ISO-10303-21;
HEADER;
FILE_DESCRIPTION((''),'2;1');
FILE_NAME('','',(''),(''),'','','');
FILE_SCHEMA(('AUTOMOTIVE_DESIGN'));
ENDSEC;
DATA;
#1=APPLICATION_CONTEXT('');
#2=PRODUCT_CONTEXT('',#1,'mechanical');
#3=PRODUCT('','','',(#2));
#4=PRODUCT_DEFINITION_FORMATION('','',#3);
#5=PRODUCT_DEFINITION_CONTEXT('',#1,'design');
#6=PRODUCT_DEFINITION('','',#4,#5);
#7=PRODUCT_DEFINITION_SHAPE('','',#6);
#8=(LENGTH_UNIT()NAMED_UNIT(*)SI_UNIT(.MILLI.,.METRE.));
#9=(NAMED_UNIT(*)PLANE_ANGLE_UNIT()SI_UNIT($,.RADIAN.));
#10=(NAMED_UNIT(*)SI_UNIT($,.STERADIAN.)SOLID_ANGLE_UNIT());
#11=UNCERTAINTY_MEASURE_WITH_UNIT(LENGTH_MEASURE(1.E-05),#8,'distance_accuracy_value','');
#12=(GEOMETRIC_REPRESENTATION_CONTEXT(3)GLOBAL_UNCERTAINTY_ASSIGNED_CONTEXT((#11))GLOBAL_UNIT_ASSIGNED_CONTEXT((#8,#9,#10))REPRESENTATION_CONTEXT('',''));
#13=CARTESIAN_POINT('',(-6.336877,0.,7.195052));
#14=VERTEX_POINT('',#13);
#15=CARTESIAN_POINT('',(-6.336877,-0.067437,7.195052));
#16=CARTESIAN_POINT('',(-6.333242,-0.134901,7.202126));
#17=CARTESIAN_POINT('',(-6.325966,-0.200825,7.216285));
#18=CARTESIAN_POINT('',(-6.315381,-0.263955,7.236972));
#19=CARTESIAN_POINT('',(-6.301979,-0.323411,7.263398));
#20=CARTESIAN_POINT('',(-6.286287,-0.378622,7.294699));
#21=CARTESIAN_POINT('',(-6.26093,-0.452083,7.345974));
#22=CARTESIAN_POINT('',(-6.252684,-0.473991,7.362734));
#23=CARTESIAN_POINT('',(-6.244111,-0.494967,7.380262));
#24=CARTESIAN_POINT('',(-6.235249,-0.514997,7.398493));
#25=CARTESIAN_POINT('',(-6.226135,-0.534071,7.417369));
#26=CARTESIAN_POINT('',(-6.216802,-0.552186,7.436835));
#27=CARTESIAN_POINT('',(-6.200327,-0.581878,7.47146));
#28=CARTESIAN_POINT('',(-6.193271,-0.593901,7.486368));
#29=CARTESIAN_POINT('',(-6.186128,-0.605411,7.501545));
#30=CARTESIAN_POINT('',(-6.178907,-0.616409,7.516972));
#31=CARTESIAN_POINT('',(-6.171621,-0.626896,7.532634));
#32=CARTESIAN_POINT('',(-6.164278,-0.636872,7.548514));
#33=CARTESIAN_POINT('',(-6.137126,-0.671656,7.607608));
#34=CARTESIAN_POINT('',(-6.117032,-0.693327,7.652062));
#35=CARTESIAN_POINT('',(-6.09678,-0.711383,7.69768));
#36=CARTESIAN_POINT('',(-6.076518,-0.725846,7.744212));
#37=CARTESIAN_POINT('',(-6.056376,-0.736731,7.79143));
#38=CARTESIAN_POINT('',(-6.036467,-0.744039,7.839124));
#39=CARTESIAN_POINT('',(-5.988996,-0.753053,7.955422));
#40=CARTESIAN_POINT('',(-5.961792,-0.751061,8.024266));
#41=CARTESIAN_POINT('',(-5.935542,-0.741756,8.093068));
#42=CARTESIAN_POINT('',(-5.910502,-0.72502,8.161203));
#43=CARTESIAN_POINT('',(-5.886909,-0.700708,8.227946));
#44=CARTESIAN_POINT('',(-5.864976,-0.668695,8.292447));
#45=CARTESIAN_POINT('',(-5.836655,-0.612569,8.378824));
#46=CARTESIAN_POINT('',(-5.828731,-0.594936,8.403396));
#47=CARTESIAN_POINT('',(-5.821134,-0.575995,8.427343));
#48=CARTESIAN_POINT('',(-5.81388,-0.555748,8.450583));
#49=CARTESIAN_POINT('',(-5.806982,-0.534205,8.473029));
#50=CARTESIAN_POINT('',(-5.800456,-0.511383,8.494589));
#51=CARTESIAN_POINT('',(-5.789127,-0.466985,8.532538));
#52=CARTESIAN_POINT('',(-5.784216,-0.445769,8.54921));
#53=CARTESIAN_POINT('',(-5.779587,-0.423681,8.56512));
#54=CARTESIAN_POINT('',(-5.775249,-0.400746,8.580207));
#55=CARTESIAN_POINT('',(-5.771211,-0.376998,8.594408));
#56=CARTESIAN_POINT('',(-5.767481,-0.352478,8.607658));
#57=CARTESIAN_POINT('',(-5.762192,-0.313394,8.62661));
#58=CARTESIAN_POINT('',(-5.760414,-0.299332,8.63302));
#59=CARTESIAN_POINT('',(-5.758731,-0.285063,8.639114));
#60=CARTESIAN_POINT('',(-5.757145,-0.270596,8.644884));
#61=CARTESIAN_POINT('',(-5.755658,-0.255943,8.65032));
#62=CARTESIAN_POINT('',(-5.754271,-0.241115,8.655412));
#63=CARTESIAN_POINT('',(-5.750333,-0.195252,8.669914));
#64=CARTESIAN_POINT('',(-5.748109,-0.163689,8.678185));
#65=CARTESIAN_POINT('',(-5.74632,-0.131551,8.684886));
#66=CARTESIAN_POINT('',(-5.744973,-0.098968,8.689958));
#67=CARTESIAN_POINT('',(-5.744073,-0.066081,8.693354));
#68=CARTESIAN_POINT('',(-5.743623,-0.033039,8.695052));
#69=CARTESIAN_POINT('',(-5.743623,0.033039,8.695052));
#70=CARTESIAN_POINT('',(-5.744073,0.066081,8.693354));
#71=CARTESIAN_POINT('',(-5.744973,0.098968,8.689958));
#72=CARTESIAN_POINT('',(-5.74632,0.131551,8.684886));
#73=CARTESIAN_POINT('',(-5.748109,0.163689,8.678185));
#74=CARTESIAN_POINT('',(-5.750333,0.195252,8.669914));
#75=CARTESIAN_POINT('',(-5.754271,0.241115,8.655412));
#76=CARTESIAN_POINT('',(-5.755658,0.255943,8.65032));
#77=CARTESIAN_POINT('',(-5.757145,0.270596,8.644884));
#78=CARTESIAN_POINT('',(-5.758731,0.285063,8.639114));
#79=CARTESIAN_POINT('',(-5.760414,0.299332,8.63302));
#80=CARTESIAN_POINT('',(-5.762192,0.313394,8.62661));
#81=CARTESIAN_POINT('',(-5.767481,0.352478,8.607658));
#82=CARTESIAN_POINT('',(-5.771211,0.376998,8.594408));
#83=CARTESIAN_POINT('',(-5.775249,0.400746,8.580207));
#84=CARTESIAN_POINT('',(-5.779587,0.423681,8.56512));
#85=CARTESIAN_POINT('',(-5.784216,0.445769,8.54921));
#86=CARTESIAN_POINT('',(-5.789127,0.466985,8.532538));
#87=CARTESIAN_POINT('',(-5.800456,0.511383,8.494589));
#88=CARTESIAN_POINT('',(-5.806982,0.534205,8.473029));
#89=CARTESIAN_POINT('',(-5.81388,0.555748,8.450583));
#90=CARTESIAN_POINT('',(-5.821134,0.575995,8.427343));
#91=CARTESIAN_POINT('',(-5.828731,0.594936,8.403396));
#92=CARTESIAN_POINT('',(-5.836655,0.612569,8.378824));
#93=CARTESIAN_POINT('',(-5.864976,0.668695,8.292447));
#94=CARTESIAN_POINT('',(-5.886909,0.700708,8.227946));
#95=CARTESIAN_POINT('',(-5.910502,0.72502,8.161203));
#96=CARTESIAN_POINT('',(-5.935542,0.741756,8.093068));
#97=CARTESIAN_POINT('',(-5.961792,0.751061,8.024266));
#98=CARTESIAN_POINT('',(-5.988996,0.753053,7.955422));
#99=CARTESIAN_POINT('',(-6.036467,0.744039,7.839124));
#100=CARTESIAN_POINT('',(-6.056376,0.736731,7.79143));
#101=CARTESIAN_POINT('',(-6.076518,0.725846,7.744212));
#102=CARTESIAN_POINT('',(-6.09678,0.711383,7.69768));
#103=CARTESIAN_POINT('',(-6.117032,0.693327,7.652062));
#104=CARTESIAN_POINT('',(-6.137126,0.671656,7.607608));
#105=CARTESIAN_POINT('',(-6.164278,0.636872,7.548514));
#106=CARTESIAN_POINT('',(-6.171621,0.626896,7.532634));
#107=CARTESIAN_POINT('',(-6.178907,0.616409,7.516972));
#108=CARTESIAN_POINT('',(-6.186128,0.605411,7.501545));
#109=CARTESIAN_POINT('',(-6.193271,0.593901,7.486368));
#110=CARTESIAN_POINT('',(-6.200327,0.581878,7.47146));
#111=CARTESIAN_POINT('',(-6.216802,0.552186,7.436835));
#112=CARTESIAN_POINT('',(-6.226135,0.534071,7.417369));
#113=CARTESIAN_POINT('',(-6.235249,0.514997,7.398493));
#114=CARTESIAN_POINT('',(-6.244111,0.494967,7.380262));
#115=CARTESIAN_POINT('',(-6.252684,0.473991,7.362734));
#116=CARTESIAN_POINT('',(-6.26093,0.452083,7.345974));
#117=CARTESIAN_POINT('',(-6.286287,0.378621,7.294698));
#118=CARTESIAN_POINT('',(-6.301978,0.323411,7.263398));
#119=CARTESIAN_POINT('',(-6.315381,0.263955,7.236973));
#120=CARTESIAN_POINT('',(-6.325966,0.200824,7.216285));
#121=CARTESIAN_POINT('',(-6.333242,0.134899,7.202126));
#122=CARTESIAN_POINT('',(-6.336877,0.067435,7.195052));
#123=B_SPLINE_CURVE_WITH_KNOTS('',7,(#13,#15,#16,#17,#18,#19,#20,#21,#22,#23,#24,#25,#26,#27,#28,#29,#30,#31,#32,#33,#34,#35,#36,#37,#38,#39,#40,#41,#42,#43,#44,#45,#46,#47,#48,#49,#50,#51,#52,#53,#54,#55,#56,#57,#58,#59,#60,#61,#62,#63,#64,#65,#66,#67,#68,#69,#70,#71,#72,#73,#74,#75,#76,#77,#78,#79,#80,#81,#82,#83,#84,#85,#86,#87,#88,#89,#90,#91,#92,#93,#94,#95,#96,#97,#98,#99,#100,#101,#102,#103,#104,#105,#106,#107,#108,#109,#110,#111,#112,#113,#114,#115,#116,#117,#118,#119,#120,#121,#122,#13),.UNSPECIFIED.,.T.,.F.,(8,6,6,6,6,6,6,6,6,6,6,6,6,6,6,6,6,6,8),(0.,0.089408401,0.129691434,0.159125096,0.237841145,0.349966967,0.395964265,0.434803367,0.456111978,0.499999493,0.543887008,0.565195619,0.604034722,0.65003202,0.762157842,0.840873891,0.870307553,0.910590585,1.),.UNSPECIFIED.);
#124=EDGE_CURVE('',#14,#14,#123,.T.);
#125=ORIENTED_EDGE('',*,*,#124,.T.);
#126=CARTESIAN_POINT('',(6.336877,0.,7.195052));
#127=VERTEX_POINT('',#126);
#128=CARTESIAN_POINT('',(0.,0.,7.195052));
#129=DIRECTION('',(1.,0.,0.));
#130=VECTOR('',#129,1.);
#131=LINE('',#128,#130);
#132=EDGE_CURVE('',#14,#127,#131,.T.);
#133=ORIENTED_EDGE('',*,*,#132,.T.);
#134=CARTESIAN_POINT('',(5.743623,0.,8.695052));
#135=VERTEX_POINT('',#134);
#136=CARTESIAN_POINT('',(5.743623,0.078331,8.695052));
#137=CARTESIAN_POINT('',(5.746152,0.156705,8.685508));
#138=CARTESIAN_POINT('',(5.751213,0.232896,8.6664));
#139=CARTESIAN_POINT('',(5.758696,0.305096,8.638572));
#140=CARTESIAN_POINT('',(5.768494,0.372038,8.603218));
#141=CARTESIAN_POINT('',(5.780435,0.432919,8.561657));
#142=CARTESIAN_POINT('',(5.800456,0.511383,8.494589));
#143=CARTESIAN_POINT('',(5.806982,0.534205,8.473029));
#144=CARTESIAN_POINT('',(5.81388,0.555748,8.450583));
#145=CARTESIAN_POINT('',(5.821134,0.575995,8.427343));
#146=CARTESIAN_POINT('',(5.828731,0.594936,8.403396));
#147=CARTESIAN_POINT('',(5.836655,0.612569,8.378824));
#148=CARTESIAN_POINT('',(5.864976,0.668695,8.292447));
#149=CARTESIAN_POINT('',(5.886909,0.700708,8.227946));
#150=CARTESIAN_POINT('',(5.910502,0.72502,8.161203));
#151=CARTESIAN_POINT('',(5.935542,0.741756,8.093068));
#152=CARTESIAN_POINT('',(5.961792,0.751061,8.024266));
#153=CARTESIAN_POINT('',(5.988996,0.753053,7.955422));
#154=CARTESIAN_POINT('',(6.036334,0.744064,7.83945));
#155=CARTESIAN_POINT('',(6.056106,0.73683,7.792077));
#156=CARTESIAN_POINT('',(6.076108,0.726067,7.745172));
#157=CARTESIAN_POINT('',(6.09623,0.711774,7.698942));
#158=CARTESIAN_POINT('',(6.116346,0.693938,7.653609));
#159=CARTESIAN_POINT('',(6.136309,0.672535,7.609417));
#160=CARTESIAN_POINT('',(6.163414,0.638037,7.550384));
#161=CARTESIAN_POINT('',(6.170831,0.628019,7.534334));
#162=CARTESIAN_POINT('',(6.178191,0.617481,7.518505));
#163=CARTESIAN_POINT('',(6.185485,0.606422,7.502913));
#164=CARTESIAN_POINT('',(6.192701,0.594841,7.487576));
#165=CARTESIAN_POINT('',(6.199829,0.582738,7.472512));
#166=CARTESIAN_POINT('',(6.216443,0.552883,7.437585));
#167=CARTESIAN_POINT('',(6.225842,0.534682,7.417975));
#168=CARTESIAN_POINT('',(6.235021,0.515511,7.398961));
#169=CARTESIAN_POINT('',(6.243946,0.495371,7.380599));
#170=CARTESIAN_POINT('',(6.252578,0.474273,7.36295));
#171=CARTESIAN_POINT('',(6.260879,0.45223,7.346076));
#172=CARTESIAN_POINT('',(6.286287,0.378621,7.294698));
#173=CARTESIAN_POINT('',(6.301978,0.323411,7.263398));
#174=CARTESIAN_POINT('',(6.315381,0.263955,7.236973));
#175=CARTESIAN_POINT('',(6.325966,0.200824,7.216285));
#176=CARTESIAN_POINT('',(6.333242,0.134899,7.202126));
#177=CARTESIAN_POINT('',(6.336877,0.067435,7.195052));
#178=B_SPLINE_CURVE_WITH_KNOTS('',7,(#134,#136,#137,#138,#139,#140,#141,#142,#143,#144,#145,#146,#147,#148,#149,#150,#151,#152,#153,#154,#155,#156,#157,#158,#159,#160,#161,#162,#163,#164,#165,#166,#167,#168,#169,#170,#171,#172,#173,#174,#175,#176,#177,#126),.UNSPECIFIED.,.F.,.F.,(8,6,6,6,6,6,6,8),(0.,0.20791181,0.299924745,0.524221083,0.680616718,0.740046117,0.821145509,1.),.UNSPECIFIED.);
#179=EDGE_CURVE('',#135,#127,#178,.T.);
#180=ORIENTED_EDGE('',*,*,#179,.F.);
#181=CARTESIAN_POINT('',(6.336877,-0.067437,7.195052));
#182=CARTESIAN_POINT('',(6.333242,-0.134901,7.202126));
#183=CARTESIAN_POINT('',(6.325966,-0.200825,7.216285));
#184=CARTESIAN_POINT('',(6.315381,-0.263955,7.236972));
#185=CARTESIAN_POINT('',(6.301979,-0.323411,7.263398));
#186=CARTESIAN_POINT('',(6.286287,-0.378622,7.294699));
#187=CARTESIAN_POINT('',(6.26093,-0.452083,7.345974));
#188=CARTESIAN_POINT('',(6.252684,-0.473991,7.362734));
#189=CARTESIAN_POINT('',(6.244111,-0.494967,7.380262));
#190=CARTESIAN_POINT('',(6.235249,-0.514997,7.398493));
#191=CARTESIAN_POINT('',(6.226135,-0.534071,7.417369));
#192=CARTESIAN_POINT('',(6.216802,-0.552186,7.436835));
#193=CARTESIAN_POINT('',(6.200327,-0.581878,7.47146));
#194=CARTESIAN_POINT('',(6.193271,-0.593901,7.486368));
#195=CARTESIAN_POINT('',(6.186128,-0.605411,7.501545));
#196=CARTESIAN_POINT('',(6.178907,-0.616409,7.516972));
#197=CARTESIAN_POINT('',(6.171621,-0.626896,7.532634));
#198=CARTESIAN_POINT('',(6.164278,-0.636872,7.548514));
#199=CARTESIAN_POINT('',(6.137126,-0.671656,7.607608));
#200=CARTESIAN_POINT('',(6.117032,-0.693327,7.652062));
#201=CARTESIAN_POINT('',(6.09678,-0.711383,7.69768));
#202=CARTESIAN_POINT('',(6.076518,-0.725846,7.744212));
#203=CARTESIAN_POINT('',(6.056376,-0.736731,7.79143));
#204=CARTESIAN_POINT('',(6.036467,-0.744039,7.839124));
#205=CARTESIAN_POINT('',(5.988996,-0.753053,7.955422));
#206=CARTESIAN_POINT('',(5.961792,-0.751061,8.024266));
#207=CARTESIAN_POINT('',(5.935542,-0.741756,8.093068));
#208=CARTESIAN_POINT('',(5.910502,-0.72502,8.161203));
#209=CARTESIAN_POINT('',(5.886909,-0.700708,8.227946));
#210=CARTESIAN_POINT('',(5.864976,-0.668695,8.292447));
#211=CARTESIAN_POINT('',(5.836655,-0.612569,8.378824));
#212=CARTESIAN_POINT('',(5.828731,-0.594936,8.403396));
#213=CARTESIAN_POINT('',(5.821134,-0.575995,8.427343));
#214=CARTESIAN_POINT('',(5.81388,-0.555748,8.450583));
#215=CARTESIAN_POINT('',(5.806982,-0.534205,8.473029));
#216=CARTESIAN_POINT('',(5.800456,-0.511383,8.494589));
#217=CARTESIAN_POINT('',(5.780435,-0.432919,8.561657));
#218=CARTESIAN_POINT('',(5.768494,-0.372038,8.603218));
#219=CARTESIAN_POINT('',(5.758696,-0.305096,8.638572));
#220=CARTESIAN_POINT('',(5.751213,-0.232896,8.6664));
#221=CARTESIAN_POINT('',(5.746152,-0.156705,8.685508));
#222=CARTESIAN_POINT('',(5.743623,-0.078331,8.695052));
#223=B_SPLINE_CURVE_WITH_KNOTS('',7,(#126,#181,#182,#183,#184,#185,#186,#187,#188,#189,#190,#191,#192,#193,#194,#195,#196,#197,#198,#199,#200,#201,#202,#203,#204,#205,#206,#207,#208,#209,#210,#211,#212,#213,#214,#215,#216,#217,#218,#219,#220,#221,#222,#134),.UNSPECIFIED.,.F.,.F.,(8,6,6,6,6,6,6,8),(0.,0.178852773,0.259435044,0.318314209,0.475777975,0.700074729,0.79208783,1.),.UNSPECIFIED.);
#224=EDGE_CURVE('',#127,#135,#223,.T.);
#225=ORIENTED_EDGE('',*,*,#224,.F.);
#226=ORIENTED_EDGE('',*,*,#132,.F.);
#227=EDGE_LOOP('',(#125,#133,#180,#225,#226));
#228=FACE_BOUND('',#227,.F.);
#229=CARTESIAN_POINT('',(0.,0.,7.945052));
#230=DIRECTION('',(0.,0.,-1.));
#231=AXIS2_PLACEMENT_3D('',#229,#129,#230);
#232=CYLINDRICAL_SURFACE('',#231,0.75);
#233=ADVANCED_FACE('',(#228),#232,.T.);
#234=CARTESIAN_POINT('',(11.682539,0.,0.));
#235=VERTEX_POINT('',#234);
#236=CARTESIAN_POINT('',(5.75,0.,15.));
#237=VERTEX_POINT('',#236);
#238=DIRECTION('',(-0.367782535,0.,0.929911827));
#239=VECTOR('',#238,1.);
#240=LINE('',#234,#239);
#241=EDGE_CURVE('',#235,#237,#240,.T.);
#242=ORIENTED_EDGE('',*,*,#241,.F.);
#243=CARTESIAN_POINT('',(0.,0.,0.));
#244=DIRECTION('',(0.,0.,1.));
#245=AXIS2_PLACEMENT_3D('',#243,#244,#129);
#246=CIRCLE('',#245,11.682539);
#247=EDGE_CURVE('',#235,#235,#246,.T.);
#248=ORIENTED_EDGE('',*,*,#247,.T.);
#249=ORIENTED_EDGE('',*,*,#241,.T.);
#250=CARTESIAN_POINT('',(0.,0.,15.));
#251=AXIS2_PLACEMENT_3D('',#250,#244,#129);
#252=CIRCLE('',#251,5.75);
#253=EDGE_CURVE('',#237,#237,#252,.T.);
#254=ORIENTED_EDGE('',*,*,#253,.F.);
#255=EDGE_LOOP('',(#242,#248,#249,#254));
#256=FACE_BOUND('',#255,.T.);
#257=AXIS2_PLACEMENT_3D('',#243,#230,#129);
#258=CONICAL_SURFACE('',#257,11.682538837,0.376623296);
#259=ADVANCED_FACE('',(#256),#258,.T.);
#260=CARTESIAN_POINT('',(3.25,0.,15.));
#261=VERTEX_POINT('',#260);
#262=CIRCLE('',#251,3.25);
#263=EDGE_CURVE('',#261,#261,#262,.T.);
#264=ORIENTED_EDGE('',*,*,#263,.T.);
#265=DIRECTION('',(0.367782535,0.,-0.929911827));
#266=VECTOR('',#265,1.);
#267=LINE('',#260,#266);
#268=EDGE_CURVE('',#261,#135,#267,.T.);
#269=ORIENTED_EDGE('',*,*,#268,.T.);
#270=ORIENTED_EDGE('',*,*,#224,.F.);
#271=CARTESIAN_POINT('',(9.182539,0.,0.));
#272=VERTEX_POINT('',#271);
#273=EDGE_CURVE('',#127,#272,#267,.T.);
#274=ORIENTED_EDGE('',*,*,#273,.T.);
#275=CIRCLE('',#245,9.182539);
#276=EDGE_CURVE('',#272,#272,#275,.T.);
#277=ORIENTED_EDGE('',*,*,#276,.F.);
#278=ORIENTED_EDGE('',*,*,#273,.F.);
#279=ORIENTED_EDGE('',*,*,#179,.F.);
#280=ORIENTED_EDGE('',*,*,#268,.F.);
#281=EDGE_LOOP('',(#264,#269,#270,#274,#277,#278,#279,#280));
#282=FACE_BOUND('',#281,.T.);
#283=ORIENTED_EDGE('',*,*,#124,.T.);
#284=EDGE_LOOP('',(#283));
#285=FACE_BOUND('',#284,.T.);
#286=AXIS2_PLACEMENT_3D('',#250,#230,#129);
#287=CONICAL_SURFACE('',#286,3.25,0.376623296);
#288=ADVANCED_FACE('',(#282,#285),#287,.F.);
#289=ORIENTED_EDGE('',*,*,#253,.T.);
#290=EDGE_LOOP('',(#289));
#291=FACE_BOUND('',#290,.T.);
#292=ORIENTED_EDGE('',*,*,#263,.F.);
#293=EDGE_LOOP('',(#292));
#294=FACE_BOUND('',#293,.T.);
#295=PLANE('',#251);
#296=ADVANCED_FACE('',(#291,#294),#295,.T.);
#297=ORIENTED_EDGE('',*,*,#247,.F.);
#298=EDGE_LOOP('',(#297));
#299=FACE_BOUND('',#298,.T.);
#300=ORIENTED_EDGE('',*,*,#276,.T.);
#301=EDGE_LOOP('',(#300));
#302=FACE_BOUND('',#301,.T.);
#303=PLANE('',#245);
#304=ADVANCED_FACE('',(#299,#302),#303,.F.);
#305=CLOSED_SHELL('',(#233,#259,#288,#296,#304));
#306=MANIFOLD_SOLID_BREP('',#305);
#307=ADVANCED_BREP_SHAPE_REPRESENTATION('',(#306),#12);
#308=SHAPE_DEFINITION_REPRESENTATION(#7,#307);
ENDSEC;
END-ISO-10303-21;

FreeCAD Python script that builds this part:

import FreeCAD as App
import Part
import Sketcher
from FreeCAD import Vector
Q = App.Units.Quantity

doc = App.newDocument("Part")
params = doc.addObject("Spreadsheet::Sheet", "Params")
for row, (alias, value) in enumerate([
    ("sketch1_width", "16 mm"),
    ("sketch1_height", "0.75 mm"),
    ("revolution_angle", "360 deg"),
    ("sketch2_width", "2.5 mm"),
    ("revolution2_angle", "360 deg"),
], start=1):
    params.set(f"A{row}", alias)
    params.set(f"B{row}", "=" + value)
    params.setAlias(f"B{row}", alias)

body = doc.addObject("PartDesign::Body", "Body")

sketch1 = doc.addObject("Sketcher::SketchObject", "Sketch")
body.addObject(sketch1)
sketch1.AttachmentSupport = (doc.XZ_Plane, [""])
sketch1.MapMode = "FlatFace"
sketch1.addGeometry([
    Part.LineSegment(Vector(-8, 7.9, 0), Vector(-8, 7.2, 0)),
    Part.LineSegment(Vector(-8, 7.2, 0), Vector(8, 7.2, 0)),
    Part.LineSegment(Vector(8, 7.2, 0), Vector(8, 7.9, 0)),
    Part.LineSegment(Vector(8, 7.9, 0), Vector(-8, 7.9, 0)),
], False)
sketch1.addGeometry(Part.LineSegment(Vector(8, 7.9, 0), Vector(-8, 7.9, 0)), True)
sketch1.addConstraint([
    Sketcher.Constraint("Coincident", 0, 2, 1, 1),
    Sketcher.Constraint("Coincident", 1, 2, 2, 1),
    Sketcher.Constraint("Coincident", 2, 2, 3, 1),
    Sketcher.Constraint("Coincident", 3, 2, 0, 1),
    Sketcher.Constraint("Vertical", 0),
    Sketcher.Constraint("Horizontal", 1),
    Sketcher.Constraint("Vertical", 2),
    Sketcher.Constraint("Horizontal", 3),
    Sketcher.Constraint("Horizontal", 4),
    Sketcher.Constraint("Coincident", 4, 1, 2, 2),
    Sketcher.Constraint("Vertical", 0, 2, 4, 2),
    Sketcher.Constraint("DistanceX", 1, 1, 1, 2, Q("16 mm")),
    Sketcher.Constraint("DistanceX", 0, 2, -1, 1, Q("8 mm")),
    Sketcher.Constraint("DistanceY", 0, 2, 0, 1, Q("0.75 mm")),
    Sketcher.Constraint("DistanceY", -1, 1, 0, 2, Q("7.195052 mm")),
])
sketch1.setExpression("Constraints[11]", "Params.sketch1_width")
sketch1.setExpression("Constraints[13]", "Params.sketch1_height")
revolution = doc.addObject("PartDesign::Revolution", "Revolution")
body.addObject(revolution)
revolution.Profile = sketch1
revolution.ReferenceAxis = (sketch1, ["Axis0"])
revolution.setExpression("Angle", "Params.revolution_angle")

sketch2 = doc.addObject("Sketcher::SketchObject", "Sketch001")
body.addObject(sketch2)
sketch2.AttachmentSupport = (doc.XZ_Plane, [""])
sketch2.MapMode = "FlatFace"
sketch2.addGeometry([
    Part.LineSegment(Vector(5.8, 15, 0), Vector(3.2, 15, 0)),
    Part.LineSegment(Vector(3.2, 15, 0), Vector(9.2, 0, 0)),
    Part.LineSegment(Vector(9.2, 0, 0), Vector(11.7, 0, 0)),
    Part.LineSegment(Vector(11.7, 0, 0), Vector(5.8, 15, 0)),
], False)
sketch2.addConstraint([
    Sketcher.Constraint("Coincident", 0, 2, 1, 1),
    Sketcher.Constraint("Coincident", 1, 2, 2, 1),
    Sketcher.Constraint("Coincident", 2, 2, 3, 1),
    Sketcher.Constraint("Coincident", 3, 2, 0, 1),
    Sketcher.Constraint("Horizontal", 0),
    Sketcher.Constraint("Horizontal", 2),
    Sketcher.Constraint("PointOnObject", 1, 2, -1),
    Sketcher.Constraint("Parallel", 1, 3),
    Sketcher.Constraint("DistanceX", 0, 2, 0, 1, Q("2.5 mm")),
    Sketcher.Constraint("DistanceY", -1, 1, 0, 2, Q("15 mm")),
    Sketcher.Constraint("DistanceX", -1, 1, 0, 2, Q("3.25 mm")),
    Sketcher.Constraint("Distance", 1, Q("16.130562 mm")),
])
sketch2.setExpression("Constraints[8]", "Params.sketch2_width")
revolution2 = doc.addObject("PartDesign::Revolution", "Revolution001")
body.addObject(revolution2)
revolution2.Profile = sketch2
revolution2.ReferenceAxis = (sketch2, ["V_Axis"])
revolution2.setExpression("Angle", "Params.revolution2_angle")

doc.recompute()
